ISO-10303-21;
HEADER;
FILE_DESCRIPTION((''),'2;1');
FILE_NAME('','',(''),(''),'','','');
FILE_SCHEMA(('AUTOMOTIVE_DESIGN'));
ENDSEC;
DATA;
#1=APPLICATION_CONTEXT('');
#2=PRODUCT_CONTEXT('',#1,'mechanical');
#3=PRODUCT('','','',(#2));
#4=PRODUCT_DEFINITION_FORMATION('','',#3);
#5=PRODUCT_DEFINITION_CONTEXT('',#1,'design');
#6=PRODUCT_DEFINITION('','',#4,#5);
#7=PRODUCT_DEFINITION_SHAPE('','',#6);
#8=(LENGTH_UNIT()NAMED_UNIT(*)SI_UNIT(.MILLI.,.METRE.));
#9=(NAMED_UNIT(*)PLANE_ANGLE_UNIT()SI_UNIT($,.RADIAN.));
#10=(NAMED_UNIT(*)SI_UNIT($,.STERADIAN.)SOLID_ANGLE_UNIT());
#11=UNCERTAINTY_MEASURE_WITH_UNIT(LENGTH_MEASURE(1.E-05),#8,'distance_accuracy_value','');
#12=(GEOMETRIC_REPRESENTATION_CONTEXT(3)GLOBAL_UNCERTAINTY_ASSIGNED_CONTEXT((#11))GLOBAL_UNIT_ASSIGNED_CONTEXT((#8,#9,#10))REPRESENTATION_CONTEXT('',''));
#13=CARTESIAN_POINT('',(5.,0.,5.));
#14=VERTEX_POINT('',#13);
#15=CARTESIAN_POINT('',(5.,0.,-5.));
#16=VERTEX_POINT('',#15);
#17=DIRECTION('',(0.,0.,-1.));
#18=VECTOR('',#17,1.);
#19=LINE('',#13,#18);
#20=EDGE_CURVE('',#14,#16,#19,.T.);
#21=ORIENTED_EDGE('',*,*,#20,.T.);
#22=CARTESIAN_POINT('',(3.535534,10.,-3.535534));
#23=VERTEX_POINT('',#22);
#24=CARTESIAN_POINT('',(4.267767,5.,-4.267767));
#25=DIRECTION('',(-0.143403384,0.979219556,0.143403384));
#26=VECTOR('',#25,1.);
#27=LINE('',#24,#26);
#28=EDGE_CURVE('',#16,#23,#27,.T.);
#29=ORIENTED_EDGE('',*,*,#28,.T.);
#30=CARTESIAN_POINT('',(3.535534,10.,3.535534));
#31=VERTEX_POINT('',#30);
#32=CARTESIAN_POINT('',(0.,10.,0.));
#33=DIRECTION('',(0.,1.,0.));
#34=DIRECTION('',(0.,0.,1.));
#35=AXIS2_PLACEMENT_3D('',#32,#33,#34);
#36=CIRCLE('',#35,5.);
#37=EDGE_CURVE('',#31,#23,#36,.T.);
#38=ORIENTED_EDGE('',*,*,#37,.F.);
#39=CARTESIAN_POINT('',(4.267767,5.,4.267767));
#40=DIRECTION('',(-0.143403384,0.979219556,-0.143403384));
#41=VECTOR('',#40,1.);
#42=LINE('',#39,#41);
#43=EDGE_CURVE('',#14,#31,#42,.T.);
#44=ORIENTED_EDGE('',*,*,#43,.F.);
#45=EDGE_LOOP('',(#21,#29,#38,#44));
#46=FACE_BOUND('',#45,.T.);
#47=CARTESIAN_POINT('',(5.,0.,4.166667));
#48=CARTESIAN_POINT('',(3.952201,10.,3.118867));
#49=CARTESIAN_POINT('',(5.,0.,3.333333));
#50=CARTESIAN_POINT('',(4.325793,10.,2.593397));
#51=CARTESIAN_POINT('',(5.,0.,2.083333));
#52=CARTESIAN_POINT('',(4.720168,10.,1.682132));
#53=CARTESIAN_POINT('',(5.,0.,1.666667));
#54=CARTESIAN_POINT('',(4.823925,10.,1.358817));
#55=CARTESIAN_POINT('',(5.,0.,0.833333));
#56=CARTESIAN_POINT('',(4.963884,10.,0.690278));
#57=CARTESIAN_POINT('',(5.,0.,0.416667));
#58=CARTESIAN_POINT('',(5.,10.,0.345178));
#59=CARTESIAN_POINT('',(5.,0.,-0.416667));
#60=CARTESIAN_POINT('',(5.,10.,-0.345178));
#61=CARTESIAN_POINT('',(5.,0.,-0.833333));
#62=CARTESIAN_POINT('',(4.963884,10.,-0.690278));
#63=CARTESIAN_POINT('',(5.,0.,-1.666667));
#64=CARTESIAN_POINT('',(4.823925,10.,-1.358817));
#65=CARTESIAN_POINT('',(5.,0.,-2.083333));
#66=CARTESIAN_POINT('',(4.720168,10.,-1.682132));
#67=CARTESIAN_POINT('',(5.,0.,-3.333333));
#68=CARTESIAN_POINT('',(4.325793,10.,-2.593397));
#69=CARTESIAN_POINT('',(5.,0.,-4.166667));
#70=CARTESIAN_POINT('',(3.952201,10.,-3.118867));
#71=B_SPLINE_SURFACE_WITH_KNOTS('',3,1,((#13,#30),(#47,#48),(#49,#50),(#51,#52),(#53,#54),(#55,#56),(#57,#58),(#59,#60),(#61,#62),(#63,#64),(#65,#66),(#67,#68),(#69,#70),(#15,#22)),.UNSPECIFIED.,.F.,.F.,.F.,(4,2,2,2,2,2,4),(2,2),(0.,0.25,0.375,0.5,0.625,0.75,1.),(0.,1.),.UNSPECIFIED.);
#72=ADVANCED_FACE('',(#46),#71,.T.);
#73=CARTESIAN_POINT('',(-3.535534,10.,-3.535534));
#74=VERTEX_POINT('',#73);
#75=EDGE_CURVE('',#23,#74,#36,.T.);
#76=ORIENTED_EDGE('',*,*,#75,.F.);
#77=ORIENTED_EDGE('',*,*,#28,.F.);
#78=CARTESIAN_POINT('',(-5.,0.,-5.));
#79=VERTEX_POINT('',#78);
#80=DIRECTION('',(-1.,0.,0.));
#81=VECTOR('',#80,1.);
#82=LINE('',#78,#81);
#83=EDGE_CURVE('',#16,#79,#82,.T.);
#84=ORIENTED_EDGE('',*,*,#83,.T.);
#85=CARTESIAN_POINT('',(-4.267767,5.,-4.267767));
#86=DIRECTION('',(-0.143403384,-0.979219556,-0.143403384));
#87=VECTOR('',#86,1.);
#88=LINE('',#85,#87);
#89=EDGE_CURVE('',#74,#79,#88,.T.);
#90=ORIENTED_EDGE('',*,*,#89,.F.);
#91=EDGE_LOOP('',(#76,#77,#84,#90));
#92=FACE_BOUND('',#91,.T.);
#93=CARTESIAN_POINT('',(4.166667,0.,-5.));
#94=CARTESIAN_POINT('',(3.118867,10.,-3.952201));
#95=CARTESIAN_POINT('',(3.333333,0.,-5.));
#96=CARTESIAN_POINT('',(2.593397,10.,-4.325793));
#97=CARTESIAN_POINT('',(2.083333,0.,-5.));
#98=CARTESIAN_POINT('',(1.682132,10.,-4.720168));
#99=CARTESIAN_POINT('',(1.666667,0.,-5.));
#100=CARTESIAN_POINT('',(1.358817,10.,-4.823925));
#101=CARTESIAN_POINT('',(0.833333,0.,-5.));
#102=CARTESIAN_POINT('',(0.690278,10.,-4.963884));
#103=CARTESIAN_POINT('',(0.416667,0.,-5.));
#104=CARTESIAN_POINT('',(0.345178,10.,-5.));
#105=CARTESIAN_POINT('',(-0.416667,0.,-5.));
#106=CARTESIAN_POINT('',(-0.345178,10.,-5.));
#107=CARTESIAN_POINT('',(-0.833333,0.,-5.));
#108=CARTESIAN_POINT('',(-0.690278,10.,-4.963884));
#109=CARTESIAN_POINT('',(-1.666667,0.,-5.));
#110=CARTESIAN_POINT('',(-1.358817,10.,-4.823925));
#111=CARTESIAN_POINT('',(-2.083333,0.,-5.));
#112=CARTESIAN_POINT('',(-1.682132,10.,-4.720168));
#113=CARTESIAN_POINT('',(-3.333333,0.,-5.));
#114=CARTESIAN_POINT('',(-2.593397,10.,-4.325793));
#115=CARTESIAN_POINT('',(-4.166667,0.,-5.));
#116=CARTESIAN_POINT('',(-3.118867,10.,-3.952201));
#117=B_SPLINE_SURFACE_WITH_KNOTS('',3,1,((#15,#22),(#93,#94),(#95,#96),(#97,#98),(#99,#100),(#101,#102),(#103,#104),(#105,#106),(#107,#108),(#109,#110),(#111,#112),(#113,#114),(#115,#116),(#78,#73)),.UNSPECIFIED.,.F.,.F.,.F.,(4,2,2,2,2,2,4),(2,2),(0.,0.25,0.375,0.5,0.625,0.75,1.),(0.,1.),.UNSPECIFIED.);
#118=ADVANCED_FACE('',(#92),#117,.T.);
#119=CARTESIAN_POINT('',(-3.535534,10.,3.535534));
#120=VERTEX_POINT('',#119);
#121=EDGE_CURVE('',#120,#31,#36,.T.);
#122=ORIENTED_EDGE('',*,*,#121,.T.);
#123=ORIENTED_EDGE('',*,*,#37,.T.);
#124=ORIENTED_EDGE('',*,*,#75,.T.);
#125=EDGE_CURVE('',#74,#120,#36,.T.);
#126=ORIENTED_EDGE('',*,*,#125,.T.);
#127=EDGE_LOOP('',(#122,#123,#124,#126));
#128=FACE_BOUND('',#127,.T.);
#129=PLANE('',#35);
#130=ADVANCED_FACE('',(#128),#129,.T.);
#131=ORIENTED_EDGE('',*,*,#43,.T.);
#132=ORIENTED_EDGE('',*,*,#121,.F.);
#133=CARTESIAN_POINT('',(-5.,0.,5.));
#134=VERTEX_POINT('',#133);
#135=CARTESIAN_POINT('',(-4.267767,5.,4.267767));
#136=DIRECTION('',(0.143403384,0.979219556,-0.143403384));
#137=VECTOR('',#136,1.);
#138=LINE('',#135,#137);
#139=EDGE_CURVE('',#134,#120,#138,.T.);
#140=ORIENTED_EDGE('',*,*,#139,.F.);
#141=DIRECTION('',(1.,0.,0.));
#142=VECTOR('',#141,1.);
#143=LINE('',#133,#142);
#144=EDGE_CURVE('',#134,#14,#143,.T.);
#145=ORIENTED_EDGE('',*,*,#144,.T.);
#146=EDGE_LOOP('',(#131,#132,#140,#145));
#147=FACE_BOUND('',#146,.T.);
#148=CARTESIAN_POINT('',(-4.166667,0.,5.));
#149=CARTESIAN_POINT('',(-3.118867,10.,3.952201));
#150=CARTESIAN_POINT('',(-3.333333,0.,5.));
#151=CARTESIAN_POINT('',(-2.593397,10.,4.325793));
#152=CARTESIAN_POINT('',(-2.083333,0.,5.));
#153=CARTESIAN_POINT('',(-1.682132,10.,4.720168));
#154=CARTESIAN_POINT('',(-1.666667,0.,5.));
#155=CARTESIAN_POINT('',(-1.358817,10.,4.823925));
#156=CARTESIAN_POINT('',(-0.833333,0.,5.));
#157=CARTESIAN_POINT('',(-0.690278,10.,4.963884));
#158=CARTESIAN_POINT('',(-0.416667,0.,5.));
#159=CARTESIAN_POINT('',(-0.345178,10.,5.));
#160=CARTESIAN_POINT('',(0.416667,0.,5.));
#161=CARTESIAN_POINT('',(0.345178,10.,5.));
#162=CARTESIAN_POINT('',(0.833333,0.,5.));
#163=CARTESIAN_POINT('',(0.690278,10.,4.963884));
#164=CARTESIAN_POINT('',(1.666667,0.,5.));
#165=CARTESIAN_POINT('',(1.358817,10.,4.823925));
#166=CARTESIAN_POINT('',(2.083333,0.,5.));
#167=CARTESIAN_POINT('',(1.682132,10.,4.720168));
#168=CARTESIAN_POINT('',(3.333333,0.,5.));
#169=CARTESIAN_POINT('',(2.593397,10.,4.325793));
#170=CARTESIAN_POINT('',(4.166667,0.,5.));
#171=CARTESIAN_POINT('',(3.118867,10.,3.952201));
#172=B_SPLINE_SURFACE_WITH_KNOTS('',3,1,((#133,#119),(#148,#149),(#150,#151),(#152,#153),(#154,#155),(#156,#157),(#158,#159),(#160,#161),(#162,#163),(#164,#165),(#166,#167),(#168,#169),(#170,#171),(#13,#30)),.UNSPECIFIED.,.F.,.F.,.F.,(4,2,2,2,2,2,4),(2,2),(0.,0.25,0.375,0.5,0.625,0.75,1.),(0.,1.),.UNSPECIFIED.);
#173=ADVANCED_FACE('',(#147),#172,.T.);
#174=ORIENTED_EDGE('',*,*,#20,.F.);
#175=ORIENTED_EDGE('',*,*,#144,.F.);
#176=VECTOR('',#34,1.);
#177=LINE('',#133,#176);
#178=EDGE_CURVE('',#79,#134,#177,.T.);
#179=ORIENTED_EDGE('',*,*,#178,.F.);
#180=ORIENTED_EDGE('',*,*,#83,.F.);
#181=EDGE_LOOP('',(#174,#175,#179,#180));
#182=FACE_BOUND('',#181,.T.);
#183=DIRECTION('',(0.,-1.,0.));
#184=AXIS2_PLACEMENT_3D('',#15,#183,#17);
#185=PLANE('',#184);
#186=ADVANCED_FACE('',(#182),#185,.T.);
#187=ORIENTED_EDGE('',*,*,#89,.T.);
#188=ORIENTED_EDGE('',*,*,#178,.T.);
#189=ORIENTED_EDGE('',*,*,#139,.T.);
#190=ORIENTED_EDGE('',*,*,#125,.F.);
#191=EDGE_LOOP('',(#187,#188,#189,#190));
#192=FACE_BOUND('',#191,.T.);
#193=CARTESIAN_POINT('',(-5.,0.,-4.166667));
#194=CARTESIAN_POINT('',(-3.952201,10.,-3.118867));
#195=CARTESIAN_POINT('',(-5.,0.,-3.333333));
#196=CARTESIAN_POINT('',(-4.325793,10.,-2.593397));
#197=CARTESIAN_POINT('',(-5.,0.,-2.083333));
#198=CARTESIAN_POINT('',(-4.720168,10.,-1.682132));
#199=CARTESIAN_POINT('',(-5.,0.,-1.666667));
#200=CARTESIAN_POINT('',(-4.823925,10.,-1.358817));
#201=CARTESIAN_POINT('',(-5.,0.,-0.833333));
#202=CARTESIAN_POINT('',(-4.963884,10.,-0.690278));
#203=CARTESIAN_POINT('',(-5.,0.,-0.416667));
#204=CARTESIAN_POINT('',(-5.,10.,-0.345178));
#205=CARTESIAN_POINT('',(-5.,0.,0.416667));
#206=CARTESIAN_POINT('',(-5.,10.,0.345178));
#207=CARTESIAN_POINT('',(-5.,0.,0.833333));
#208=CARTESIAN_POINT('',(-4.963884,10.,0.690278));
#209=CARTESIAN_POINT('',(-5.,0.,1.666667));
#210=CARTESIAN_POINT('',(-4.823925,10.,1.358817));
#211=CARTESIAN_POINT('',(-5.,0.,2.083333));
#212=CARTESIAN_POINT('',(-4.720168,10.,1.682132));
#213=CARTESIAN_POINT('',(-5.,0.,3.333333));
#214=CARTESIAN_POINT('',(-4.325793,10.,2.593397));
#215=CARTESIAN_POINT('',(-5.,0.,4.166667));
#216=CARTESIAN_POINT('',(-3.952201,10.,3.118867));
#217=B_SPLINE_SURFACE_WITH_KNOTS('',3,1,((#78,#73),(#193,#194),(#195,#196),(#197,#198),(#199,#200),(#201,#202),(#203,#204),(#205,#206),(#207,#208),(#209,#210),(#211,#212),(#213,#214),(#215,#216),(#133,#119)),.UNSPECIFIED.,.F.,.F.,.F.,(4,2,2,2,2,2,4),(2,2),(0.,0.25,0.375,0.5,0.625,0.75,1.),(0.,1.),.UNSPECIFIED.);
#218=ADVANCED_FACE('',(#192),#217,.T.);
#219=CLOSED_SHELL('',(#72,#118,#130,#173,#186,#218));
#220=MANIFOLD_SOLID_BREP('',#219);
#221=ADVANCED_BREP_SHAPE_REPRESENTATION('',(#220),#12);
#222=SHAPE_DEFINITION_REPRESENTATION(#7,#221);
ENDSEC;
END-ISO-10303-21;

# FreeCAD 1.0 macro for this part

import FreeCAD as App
import Part
import Sketcher

V = App.Vector
Q = App.Units.Quantity

doc = App.newDocument("Part")
body = doc.addObject("PartDesign::Body", "Body")

# Sketch on XZ plane
sketch1 = body.newObject("Sketcher::SketchObject", "Sketch")
sketch1.AttachmentSupport = (doc.getObject("XZ_Plane"), [""])
sketch1.MapMode = "FlatFace"
sketch1.addGeometry([
    Part.LineSegment(V(-5, 5, 0), V(5, 5, 0)),
    Part.LineSegment(V(5, 5, 0), V(5, -5, 0)),
    Part.LineSegment(V(5, -5, 0), V(-5, -5, 0)),
    Part.LineSegment(V(-5, -5, 0), V(-5, 5, 0)),
], False)
sketch1.addConstraint([
    Sketcher.Constraint("Coincident", 0, 2, 1, 1),
    Sketcher.Constraint("Coincident", 1, 2, 2, 1),
    Sketcher.Constraint("Coincident", 2, 2, 3, 1),
    Sketcher.Constraint("Coincident", 3, 2, 0, 1),
    Sketcher.Constraint("Horizontal", 0),
    Sketcher.Constraint("Vertical", 1),
    Sketcher.Constraint("Horizontal", 2),
    Sketcher.Constraint("Vertical", 3),
    Sketcher.Constraint("Symmetric", 0, 2, 2, 2, -1, 1),
    Sketcher.Constraint("Equal", 2, 1),
    Sketcher.Constraint("DistanceX", 0, 1, 0, 2, Q("10 mm")),
])

# Sketch on XZ plane
sketch2 = body.newObject("Sketcher::SketchObject", "Sketch001")
sketch2.AttachmentSupport = (doc.getObject("XZ_Plane"), [""])
sketch2.MapMode = "FlatFace"
sketch2.AttachmentOffset = App.Placement(V(0, 0, -10), App.Rotation())
sketch2.addGeometry(Part.BSplineCurve([V(-3.535534, -3.535534, 0), V(-4.535534, -2.535534, 0), V(-5.392136, -0.946699, 0), V(-5.392136, 0.946699, 0), V(-4.535534, 2.535534, 0), V(-2.535534, 4.535534, 0), V(-0.946699, 5.392136, 0), V(0.946699, 5.392136, 0), V(2.535534, 4.535534, 0), V(4.535534, 2.535534, 0), V(5.392136, 0.946699, 0), V(5.392136, -0.946699, 0), V(4.535534, -2.535534, 0), V(2.535534, -4.535534, 0), V(0.946699, -5.392136, 0), V(-0.946699, -5.392136, 0), V(-2.535534, -4.535534, 0), V(-3.535534, -3.535534, 0)], [6, 4, 4, 4, 6], [0, 1, 2, 3, 4], False, 5, [1, 1, 0.965685425, 0.965685425, 1, 1, 0.965685425, 0.965685425, 1, 1, 0.965685425, 0.965685425, 1, 1, 0.965685425, 0.965685425, 1, 1], False), False)
sketch2.addConstraint(Sketcher.Constraint("Block", 0))

additiveloft = body.newObject("PartDesign::AdditiveLoft", "AdditiveLoft")
additiveloft.Profile = sketch1
additiveloft.Sections = [sketch2]

doc.recompute()
